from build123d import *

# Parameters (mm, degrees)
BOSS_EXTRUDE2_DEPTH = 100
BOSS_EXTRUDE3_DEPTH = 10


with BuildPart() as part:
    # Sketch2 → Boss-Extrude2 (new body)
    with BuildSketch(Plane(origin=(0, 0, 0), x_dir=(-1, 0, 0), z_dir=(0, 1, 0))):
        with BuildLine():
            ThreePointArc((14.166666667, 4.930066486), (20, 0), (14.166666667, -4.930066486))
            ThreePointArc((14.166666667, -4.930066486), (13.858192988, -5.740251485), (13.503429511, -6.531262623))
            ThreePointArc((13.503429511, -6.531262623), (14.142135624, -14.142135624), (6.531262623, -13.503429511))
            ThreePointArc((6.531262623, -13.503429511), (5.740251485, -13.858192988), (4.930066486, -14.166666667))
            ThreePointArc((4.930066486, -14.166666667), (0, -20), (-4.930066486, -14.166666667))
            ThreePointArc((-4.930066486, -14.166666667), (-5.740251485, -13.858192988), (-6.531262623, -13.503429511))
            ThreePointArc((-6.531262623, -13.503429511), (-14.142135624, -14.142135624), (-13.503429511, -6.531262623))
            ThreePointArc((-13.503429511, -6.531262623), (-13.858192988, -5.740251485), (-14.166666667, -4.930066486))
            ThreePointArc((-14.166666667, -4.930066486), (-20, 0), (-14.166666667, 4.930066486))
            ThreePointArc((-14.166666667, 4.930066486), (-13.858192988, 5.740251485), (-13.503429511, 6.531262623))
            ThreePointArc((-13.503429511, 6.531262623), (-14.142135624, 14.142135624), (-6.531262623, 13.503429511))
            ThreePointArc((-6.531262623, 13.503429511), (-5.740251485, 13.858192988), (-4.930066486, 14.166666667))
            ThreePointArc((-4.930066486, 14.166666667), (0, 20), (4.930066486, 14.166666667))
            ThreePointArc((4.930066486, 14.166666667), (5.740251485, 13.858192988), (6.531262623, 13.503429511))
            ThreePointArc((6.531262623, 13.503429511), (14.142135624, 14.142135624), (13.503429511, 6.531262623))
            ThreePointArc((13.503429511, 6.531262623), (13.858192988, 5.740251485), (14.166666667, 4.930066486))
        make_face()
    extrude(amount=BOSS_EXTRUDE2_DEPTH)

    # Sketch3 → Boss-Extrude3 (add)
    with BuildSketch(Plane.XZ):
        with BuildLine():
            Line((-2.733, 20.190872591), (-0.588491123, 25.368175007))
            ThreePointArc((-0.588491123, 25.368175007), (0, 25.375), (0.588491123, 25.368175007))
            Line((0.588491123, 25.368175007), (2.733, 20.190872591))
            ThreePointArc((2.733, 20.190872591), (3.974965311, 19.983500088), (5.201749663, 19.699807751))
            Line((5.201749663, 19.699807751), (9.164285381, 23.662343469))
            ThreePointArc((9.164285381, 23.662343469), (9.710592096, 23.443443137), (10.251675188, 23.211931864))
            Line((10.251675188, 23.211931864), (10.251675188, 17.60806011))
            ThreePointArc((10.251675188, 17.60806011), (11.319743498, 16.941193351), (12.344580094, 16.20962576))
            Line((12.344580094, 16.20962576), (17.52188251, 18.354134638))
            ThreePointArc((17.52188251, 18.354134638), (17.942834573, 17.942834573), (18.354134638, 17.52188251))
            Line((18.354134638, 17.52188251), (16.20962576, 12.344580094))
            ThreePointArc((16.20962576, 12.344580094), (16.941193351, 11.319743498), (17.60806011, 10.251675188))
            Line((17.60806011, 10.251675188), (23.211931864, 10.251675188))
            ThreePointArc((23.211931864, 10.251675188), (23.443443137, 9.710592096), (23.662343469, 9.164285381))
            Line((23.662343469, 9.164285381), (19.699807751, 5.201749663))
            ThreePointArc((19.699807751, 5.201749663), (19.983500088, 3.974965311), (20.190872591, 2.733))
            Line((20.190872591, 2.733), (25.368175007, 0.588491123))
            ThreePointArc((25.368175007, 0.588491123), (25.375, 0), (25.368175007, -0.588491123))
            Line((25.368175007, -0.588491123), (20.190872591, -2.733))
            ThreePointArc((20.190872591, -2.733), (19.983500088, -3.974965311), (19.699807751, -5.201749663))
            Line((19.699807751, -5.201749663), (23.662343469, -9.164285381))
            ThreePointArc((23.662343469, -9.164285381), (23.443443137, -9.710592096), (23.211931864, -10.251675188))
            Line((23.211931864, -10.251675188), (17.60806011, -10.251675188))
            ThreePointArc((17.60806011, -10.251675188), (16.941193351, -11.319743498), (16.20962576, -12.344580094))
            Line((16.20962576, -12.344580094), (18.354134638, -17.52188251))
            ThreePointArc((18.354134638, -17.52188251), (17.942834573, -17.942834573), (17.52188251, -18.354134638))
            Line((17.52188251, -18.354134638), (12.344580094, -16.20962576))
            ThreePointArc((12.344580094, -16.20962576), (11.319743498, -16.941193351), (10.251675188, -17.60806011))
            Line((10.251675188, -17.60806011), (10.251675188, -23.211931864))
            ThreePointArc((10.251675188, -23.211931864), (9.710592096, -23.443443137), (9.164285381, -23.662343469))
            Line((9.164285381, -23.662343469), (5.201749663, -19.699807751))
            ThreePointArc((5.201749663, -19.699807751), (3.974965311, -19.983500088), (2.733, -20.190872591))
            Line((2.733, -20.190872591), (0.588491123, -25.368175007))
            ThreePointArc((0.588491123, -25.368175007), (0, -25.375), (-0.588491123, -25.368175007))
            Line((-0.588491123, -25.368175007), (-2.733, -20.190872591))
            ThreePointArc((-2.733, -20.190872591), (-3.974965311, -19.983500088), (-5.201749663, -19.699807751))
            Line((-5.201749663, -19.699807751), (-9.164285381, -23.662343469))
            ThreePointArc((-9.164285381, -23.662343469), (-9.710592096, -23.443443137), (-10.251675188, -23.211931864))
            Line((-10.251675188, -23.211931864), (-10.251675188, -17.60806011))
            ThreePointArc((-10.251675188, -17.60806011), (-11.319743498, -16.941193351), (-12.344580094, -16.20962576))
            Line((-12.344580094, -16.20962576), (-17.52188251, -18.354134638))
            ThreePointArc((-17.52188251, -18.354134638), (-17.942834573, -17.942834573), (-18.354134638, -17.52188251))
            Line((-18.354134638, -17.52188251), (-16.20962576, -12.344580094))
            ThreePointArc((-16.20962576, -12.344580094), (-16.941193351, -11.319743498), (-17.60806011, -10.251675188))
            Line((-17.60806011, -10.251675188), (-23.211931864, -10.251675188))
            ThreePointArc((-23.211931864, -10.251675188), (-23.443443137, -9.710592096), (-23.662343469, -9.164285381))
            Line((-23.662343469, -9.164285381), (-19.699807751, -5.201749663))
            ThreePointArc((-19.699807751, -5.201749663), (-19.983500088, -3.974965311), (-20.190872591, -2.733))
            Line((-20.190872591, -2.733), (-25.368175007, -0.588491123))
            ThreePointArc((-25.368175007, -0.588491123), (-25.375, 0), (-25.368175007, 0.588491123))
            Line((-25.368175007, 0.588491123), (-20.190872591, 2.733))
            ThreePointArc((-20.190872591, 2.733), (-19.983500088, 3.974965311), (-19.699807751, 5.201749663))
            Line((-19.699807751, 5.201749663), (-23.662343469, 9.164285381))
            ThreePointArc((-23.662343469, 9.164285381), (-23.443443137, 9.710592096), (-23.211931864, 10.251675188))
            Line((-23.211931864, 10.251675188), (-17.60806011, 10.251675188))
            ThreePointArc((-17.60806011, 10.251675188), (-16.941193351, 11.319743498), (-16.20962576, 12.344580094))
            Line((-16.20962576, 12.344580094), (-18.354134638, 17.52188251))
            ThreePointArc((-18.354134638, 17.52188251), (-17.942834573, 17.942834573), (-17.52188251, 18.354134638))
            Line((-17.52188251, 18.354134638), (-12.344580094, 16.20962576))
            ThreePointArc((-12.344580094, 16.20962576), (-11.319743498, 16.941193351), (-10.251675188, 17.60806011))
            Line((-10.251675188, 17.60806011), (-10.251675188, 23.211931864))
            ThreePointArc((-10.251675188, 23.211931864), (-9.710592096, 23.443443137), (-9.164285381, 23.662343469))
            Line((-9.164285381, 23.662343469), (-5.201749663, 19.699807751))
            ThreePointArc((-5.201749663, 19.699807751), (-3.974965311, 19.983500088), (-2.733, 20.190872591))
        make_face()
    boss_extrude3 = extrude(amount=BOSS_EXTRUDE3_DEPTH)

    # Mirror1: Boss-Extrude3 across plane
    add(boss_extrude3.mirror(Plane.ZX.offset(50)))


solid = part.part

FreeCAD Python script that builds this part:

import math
import FreeCAD as App
import Part
import Sketcher
from FreeCAD import Vector
Q = App.Units.Quantity

doc = App.newDocument("Part")
body = doc.addObject("PartDesign::Body", "Body")

# Sketch on XZ plane
sketch1 = body.newObject("Sketcher::SketchObject", "Sketch")
sketch1.AttachmentSupport = (doc.getObject("XZ_Plane"), [""])
sketch1.MapMode = "FlatFace"
sketch1.addGeometry([
    Part.ArcOfCircle(Part.Circle(Vector(-15, 0, 0), Vector(0, 0, 1), 5), math.radians(80), math.radians(280)),  # 0
    Part.ArcOfCircle(Part.Circle(Vector(0, 0, 0), Vector(0, 0, 1), 15), math.radians(154.19), math.radians(160.81)),  # 1
    Part.ArcOfCircle(Part.Circle(Vector(-10.6, 10.6, 0), Vector(0, 0, 1), 5), math.radians(35), math.radians(235)),  # 2
    Part.ArcOfCircle(Part.Circle(Vector(0, 0, 0), Vector(0, 0, 1), 15), math.radians(109.19), math.radians(115.81)),  # 3
    Part.ArcOfCircle(Part.Circle(Vector(0, 15, 0), Vector(0, 0, 1), 5), math.radians(-10), math.radians(190)),  # 4
    Part.ArcOfCircle(Part.Circle(Vector(0, 0, 0), Vector(0, 0, 1), 15), math.radians(64.19), math.radians(70.81)),  # 5
    Part.ArcOfCircle(Part.Circle(Vector(10.6, 10.6, 0), Vector(0, 0, 1), 5), math.radians(-55), math.radians(145)),  # 6
    Part.ArcOfCircle(Part.Circle(Vector(0, 0, 0), Vector(0, 0, 1), 15), math.radians(19.19), math.radians(25.81)),  # 7
    Part.ArcOfCircle(Part.Circle(Vector(15, 0, 0), Vector(0, 0, 1), 5), math.radians(-100), math.radians(100)),  # 8
    Part.ArcOfCircle(Part.Circle(Vector(0, 0, 0), Vector(0, 0, 1), 15), math.radians(-25.81), math.radians(-19.19)),  # 9
    Part.ArcOfCircle(Part.Circle(Vector(10.6, -10.6, 0), Vector(0, 0, 1), 5), math.radians(-145), math.radians(55)),  # 10
    Part.ArcOfCircle(Part.Circle(Vector(0, 0, 0), Vector(0, 0, 1), 15), math.radians(-70.81), math.radians(-64.19)),  # 11
    Part.ArcOfCircle(Part.Circle(Vector(0, -15, 0), Vector(0, 0, 1), 5), math.radians(170), math.radians(370)),  # 12
    Part.ArcOfCircle(Part.Circle(Vector(0, 0, 0), Vector(0, 0, 1), 15), math.radians(-115.81), math.radians(-109.19)),  # 13
    Part.ArcOfCircle(Part.Circle(Vector(-10.6, -10.6, 0), Vector(0, 0, 1), 5), math.radians(125), math.radians(325)),  # 14
    Part.ArcOfCircle(Part.Circle(Vector(0, 0, 0), Vector(0, 0, 1), 15), math.radians(-160.81), math.radians(-154.19)),  # 15
], False)
sketch1.addConstraint([
    Sketcher.Constraint("Coincident", 0, 1, 1, 2),
    Sketcher.Constraint("Coincident", 1, 1, 2, 2),
    Sketcher.Constraint("Coincident", 2, 1, 3, 2),
    Sketcher.Constraint("Coincident", 3, 1, 4, 2),
    Sketcher.Constraint("Coincident", 4, 1, 5, 2),
    Sketcher.Constraint("Coincident", 5, 1, 6, 2),
    Sketcher.Constraint("Coincident", 6, 1, 7, 2),
    Sketcher.Constraint("Coincident", 7, 1, 8, 2),
    Sketcher.Constraint("Coincident", 8, 1, 9, 2),
    Sketcher.Constraint("Coincident", 9, 1, 10, 2),
    Sketcher.Constraint("Coincident", 10, 1, 11, 2),
    Sketcher.Constraint("Coincident", 11, 1, 12, 2),
    Sketcher.Constraint("Coincident", 12, 1, 13, 2),
    Sketcher.Constraint("Coincident", 13, 1, 14, 2),
    Sketcher.Constraint("Coincident", 14, 1, 15, 2),
    Sketcher.Constraint("Coincident", 15, 1, 0, 2),
    Sketcher.Constraint("Coincident", 1, 3, -1, 1),
    Sketcher.Constraint("Coincident", 3, 3, -1, 1),
    Sketcher.Constraint("Coincident", 5, 3, -1, 1),
    Sketcher.Constraint("Coincident", 7, 3, -1, 1),
    Sketcher.Constraint("Coincident", 9, 3, -1, 1),
    Sketcher.Constraint("Coincident", 11, 3, -1, 1),
    Sketcher.Constraint("Coincident", 13, 3, -1, 1),
    Sketcher.Constraint("Coincident", 15, 3, -1, 1),
    Sketcher.Constraint("Equal", 0, 2),
    Sketcher.Constraint("Equal", 1, 3),
    Sketcher.Constraint("Equal", 2, 4),
    Sketcher.Constraint("Equal", 3, 5),
    Sketcher.Constraint("Equal", 4, 6),
    Sketcher.Constraint("Equal", 5, 7),
    Sketcher.Constraint("Equal", 6, 8),
    Sketcher.Constraint("Equal", 7, 9),
    Sketcher.Constraint("Equal", 8, 10),
    Sketcher.Constraint("Equal", 9, 11),
    Sketcher.Constraint("Equal", 10, 12),
    Sketcher.Constraint("Equal", 11, 13),
    Sketcher.Constraint("Equal", 12, 14),
    Sketcher.Constraint("Equal", 13, 15),
    Sketcher.Constraint("Symmetric", 0, 3, 8, 3, -1, 1),
    Sketcher.Constraint("Symmetric", 2, 3, 10, 3, -1, 1),
    Sketcher.Constraint("Symmetric", 4, 3, 12, 3, -1, 1),
    Sketcher.Constraint("Symmetric", 6, 3, 14, 3, -1, 1),
    Sketcher.Constraint("Symmetric", 2, 3, 6, 3, -2),
    Sketcher.Constraint("PointOnObject", 0, 3, -1),
    Sketcher.Constraint("PointOnObject", 4, 3, -2),
    Sketcher.Constraint("Radius", 0, Q("5 mm")),
    Sketcher.Constraint("Radius", 1, Q("15 mm")),
    Sketcher.Constraint("DistanceX", 0, 3, -1, 1, Q("15 mm")),
    Sketcher.Constraint("DistanceY", -1, 1, 4, 3, Q("15 mm")),
    Sketcher.Constraint("DistanceX", 2, 3, -1, 1, Q("10.606602 mm")),
    Sketcher.Constraint("DistanceY", -1, 1, 2, 3, Q("10.606602 mm")),
])
pad1 = body.newObject("PartDesign::Pad", "Pad")
pad1.Profile = sketch1
pad1.Length = 100
pad1.Reversed = True

# Sketch on XZ plane
sketch2 = body.newObject("Sketcher::SketchObject", "Sketch001")
sketch2.AttachmentSupport = (doc.getObject("XZ_Plane"), [""])
sketch2.MapMode = "FlatFace"
sketch2.addGeometry([
    Part.LineSegment(Vector(-0.588491, 25.368175, 0), Vector(-2.733, 20.190873, 0)),  # 0
    Part.ArcOfCircle(Part.Circle(Vector(0, 0, 0), Vector(0, 0, 1), 20.375), math.radians(97.708602), math.radians(104.791398)),  # 1
    Part.LineSegment(Vector(-5.20175, 19.699808, 0), Vector(-9.164285, 23.662343, 0)),  # 2
    Part.ArcOfCircle(Part.Circle(Vector(0.000001, -0.000002, 0), Vector(0, 0, 1), 25.375002), math.radians(111.17109), math.radians(113.828909)),  # 3
    Part.LineSegment(Vector(-10.251675, 23.211932, 0), Vector(-10.251675, 17.60806, 0)),  # 4
    Part.ArcOfCircle(Part.Circle(Vector(0, 0, 0), Vector(0, 0, 1), 20.375), math.radians(120.208602), math.radians(127.291398)),  # 5
    Part.LineSegment(Vector(-12.34458, 16.209626, 0), Vector(-17.521883, 18.354135, 0)),  # 6
    Part.ArcOfCircle(Part.Circle(Vector(-0.000001, 0.000001, 0), Vector(0, 0, 1), 25.374998), math.radians(133.67109), math.radians(136.32891)),  # 7
    Part.LineSegment(Vector(-18.354135, 17.521883, 0), Vector(-16.209626, 12.34458, 0)),  # 8
    Part.ArcOfCircle(Part.Circle(Vector(0, 0, 0), Vector(0, 0, 1), 20.375), math.radians(142.708602), math.radians(149.791398)),  # 9
    Part.LineSegment(Vector(-17.60806, 10.251675, 0), Vector(-23.211932, 10.251675, 0)),  # 10
    Part.ArcOfCircle(Part.Circle(Vector(0.000002, -0.000001, 0), Vector(0, 0, 1), 25.375002), math.radians(156.171091), math.radians(158.82891)),  # 11
    Part.LineSegment(Vector(-23.662343, 9.164285, 0), Vector(-19.699808, 5.20175, 0)),  # 12
    Part.ArcOfCircle(Part.Circle(Vector(0, 0, 0), Vector(0, 0, 1), 20.375), math.radians(165.208602), math.radians(172.291398)),  # 13
    Part.LineSegment(Vector(-20.190873, 2.733, 0), Vector(-25.368175, 0.588491, 0)),  # 14
    Part.ArcOfCircle(Part.Circle(Vector(-0.000001, 0, 0), Vector(0, 0, 1), 25.374999), math.radians(178.67109), math.radians(181.32891)),  # 15
    Part.LineSegment(Vector(-25.368175, -0.588491, 0), Vector(-20.190873, -2.733, 0)),  # 16
    Part.ArcOfCircle(Part.Circle(Vector(0, 0, 0), Vector(0, 0, 1), 20.375), math.radians(-172.291398), math.radians(-165.208602)),  # 17
    Part.LineSegment(Vector(-19.699808, -5.20175, 0), Vector(-23.662343, -9.164285, 0)),  # 18
    Part.ArcOfCircle(Part.Circle(Vector(0.000002, 0.000001, 0), Vector(0, 0, 1), 25.375002), math.radians(-158.82891), math.radians(-156.171091)),  # 19
    Part.LineSegment(Vector(-23.211932, -10.251675, 0), Vector(-17.60806, -10.251675, 0)),  # 20
    Part.ArcOfCircle(Part.Circle(Vector(0, 0, 0), Vector(0, 0, 1), 20.375), math.radians(-149.791398), math.radians(-142.708602)),  # 21
    Part.LineSegment(Vector(-16.209626, -12.34458, 0), Vector(-18.354135, -17.521883, 0)),  # 22
    Part.ArcOfCircle(Part.Circle(Vector(-0.000001, -0.000001, 0), Vector(0, 0, 1), 25.374998), math.radians(-136.32891), math.radians(-133.67109)),  # 23
    Part.LineSegment(Vector(-17.521883, -18.354135, 0), Vector(-12.34458, -16.209626, 0)),  # 24
    Part.ArcOfCircle(Part.Circle(Vector(0, 0, 0), Vector(0, 0, 1), 20.375), math.radians(-127.291398), math.radians(-120.208602)),  # 25
    Part.LineSegment(Vector(-10.251675, -17.60806, 0), Vector(-10.251675, -23.211932, 0)),  # 26
    Part.ArcOfCircle(Part.Circle(Vector(0.000001, 0.000002, 0), Vector(0, 0, 1), 25.375002), math.radians(-113.828909), math.radians(-111.17109)),  # 27
    Part.LineSegment(Vector(-9.164285, -23.662343, 0), Vector(-5.20175, -19.699808, 0)),  # 28
    Part.ArcOfCircle(Part.Circle(Vector(0, 0, 0), Vector(0, 0, 1), 20.375), math.radians(-104.791398), math.radians(-97.708602)),  # 29
    Part.LineSegment(Vector(-2.733, -20.190873, 0), Vector(-0.588491, -25.368175, 0)),  # 30
    Part.ArcOfCircle(Part.Circle(Vector(0, -0.000001, 0), Vector(0, 0, 1), 25.374999), math.radians(-91.32891), math.radians(-88.67109)),  # 31
    Part.LineSegment(Vector(0.588491, -25.368175, 0), Vector(2.733, -20.190873, 0)),  # 32
    Part.ArcOfCircle(Part.Circle(Vector(0, 0, 0), Vector(0, 0, 1), 20.375), math.radians(-82.291398), math.radians(-75.208602)),  # 33
    Part.LineSegment(Vector(5.20175, -19.699808, 0), Vector(9.164285, -23.662343, 0)),  # 34
    Part.ArcOfCircle(Part.Circle(Vector(-0.000001, 0.000002, 0), Vector(0, 0, 1), 25.375002), math.radians(-68.82891), math.radians(-66.171091)),  # 35
    Part.LineSegment(Vector(10.251675, -23.211932, 0), Vector(10.251675, -17.60806, 0)),  # 36
    Part.ArcOfCircle(Part.Circle(Vector(0, 0, 0), Vector(0, 0, 1), 20.375), math.radians(-59.791398), math.radians(-52.708602)),  # 37
    Part.LineSegment(Vector(12.34458, -16.209626, 0), Vector(17.521883, -18.354135, 0)),  # 38
    Part.ArcOfCircle(Part.Circle(Vector(0.000001, -0.000001, 0), Vector(0, 0, 1), 25.374998), math.radians(-46.32891), math.radians(-43.67109)),  # 39
    Part.LineSegment(Vector(18.354135, -17.521883, 0), Vector(16.209626, -12.34458, 0)),  # 40
    Part.ArcOfCircle(Part.Circle(Vector(0, 0, 0), Vector(0, 0, 1), 20.375), math.radians(-37.291398), math.radians(-30.208602)),  # 41
    Part.LineSegment(Vector(17.60806, -10.251675, 0), Vector(23.211932, -10.251675, 0)),  # 42
    Part.ArcOfCircle(Part.Circle(Vector(-0.000002, 0.000001, 0), Vector(0, 0, 1), 25.375002), math.radians(-23.828909), math.radians(-21.17109)),  # 43
    Part.LineSegment(Vector(23.662343, -9.164285, 0), Vector(19.699808, -5.20175, 0)),  # 44
    Part.ArcOfCircle(Part.Circle(Vector(0, 0, 0), Vector(0, 0, 1), 20.375), math.radians(-14.791398), math.radians(-7.708602)),  # 45
    Part.LineSegment(Vector(20.190873, -2.733, 0), Vector(25.368175, -0.588491, 0)),  # 46
    Part.ArcOfCircle(Part.Circle(Vector(0.000001, 0, 0), Vector(0, 0, 1), 25.374999), math.radians(-1.32891), math.radians(1.32891)),  # 47
    Part.LineSegment(Vector(25.368175, 0.588491, 0), Vector(20.190873, 2.733, 0)),  # 48
    Part.ArcOfCircle(Part.Circle(Vector(0, 0, 0), Vector(0, 0, 1), 20.375), math.radians(7.708602), math.radians(14.791398)),  # 49
    Part.LineSegment(Vector(19.699808, 5.20175, 0), Vector(23.662343, 9.164285, 0)),  # 50
    Part.ArcOfCircle(Part.Circle(Vector(-0.000002, -0.000001, 0), Vector(0, 0, 1), 25.375002), math.radians(21.17109), math.radians(23.828909)),  # 51
    Part.LineSegment(Vector(23.211932, 10.251675, 0), Vector(17.60806, 10.251675, 0)),  # 52
    Part.ArcOfCircle(Part.Circle(Vector(0, 0, 0), Vector(0, 0, 1), 20.375), math.radians(30.208602), math.radians(37.291398)),  # 53
    Part.LineSegment(Vector(16.209626, 12.34458, 0), Vector(18.354135, 17.521883, 0)),  # 54
    Part.ArcOfCircle(Part.Circle(Vector(0.000001, 0.000001, 0), Vector(0, 0, 1), 25.374998), math.radians(43.67109), math.radians(46.32891)),  # 55
    Part.LineSegment(Vector(17.521883, 18.354135, 0), Vector(12.34458, 16.209626, 0)),  # 56
    Part.ArcOfCircle(Part.Circle(Vector(0, 0, 0), Vector(0, 0, 1), 20.375), math.radians(52.708602), math.radians(59.791398)),  # 57
    Part.LineSegment(Vector(10.251675, 17.60806, 0), Vector(10.251675, 23.211932, 0)),  # 58
    Part.ArcOfCircle(Part.Circle(Vector(-0.000001, -0.000002, 0), Vector(0, 0, 1), 25.375002), math.radians(66.171091), math.radians(68.82891)),  # 59
    Part.LineSegment(Vector(9.164285, 23.662343, 0), Vector(5.20175, 19.699808, 0)),  # 60
    Part.ArcOfCircle(Part.Circle(Vector(0, 0, 0), Vector(0, 0, 1), 20.375), math.radians(75.208602), math.radians(82.291398)),  # 61
    Part.LineSegment(Vector(2.733, 20.190873, 0), Vector(0.588491, 25.368175, 0)),  # 62
    Part.ArcOfCircle(Part.Circle(Vector(0, 0.000001, 0), Vector(0, 0, 1), 25.374999), math.radians(88.67109), math.radians(91.32891)),  # 63
], False)
sketch2.addConstraint([
    Sketcher.Constraint("Coincident", 0, 2, 1, 1),
    Sketcher.Constraint("Coincident", 1, 2, 2, 1),
    Sketcher.Constraint("Coincident", 2, 2, 3, 1),
    Sketcher.Constraint("Coincident", 3, 2, 4, 1),
    Sketcher.Constraint("Coincident", 4, 2, 5, 1),
    Sketcher.Constraint("Coincident", 5, 2, 6, 1),
    Sketcher.Constraint("Coincident", 6, 2, 7, 1),
    Sketcher.Constraint("Coincident", 7, 2, 8, 1),
    Sketcher.Constraint("Coincident", 8, 2, 9, 1),
    Sketcher.Constraint("Coincident", 9, 2, 10, 1),
    Sketcher.Constraint("Coincident", 10, 2, 11, 1),
    Sketcher.Constraint("Coincident", 11, 2, 12, 1),
    Sketcher.Constraint("Coincident", 12, 2, 13, 1),
    Sketcher.Constraint("Coincident", 13, 2, 14, 1),
    Sketcher.Constraint("Coincident", 14, 2, 15, 1),
    Sketcher.Constraint("Coincident", 15, 2, 16, 1),
    Sketcher.Constraint("Coincident", 16, 2, 17, 1),
    Sketcher.Constraint("Coincident", 17, 2, 18, 1),
    Sketcher.Constraint("Coincident", 18, 2, 19, 1),
    Sketcher.Constraint("Coincident", 19, 2, 20, 1),
    Sketcher.Constraint("Coincident", 20, 2, 21, 1),
    Sketcher.Constraint("Coincident", 21, 2, 22, 1),
    Sketcher.Constraint("Coincident", 22, 2, 23, 1),
    Sketcher.Constraint("Coincident", 23, 2, 24, 1),
    Sketcher.Constraint("Coincident", 24, 2, 25, 1),
    Sketcher.Constraint("Coincident", 25, 2, 26, 1),
    Sketcher.Constraint("Coincident", 26, 2, 27, 1),
    Sketcher.Constraint("Coincident", 27, 2, 28, 1),
    Sketcher.Constraint("Coincident", 28, 2, 29, 1),
    Sketcher.Constraint("Coincident", 29, 2, 30, 1),
    Sketcher.Constraint("Coincident", 30, 2, 31, 1),
    Sketcher.Constraint("Coincident", 31, 2, 32, 1),
    Sketcher.Constraint("Coincident", 32, 2, 33, 1),
    Sketcher.Constraint("Coincident", 33, 2, 34, 1),
    Sketcher.Constraint("Coincident", 34, 2, 35, 1),
    Sketcher.Constraint("Coincident", 35, 2, 36, 1),
    Sketcher.Constraint("Coincident", 36, 2, 37, 1),
    Sketcher.Constraint("Coincident", 37, 2, 38, 1),
    Sketcher.Constraint("Coincident", 38, 2, 39, 1),
    Sketcher.Constraint("Coincident", 39, 2, 40, 1),
    Sketcher.Constraint("Coincident", 40, 2, 41, 1),
    Sketcher.Constraint("Coincident", 41, 2, 42, 1),
    Sketcher.Constraint("Coincident", 42, 2, 43, 1),
    Sketcher.Constraint("Coincident", 43, 2, 44, 1),
    Sketcher.Constraint("Coincident", 44, 2, 45, 1),
    Sketcher.Constraint("Coincident", 45, 2, 46, 1),
    Sketcher.Constraint("Coincident", 46, 2, 47, 1),
    Sketcher.Constraint("Coincident", 47, 2, 48, 1),
    Sketcher.Constraint("Coincident", 48, 2, 49, 1),
    Sketcher.Constraint("Coincident", 49, 2, 50, 1),
    Sketcher.Constraint("Coincident", 50, 2, 51, 1),
    Sketcher.Constraint("Coincident", 51, 2, 52, 1),
    Sketcher.Constraint("Coincident", 52, 2, 53, 1),
    Sketcher.Constraint("Coincident", 53, 2, 54, 1),
    Sketcher.Constraint("Coincident", 54, 2, 55, 1),
    Sketcher.Constraint("Coincident", 55, 2, 56, 1),
    Sketcher.Constraint("Coincident", 56, 2, 57, 1),
    Sketcher.Constraint("Coincident", 57, 2, 58, 1),
    Sketcher.Constraint("Coincident", 58, 2, 59, 1),
    Sketcher.Constraint("Coincident", 59, 2, 60, 1),
    Sketcher.Constraint("Coincident", 60, 2, 61, 1),
    Sketcher.Constraint("Coincident", 61, 2, 62, 1),
    Sketcher.Constraint("Coincident", 62, 2, 63, 1),
    Sketcher.Constraint("Coincident", 63, 2, 0, 1),
    Sketcher.Constraint("Vertical", 4),
    Sketcher.Constraint("Horizontal", 10),
    Sketcher.Constraint("Horizontal", 20),
    Sketcher.Constraint("Vertical", 26),
    Sketcher.Constraint("Vertical", 36),
    Sketcher.Constraint("Horizontal", 42),
    Sketcher.Constraint("Horizontal", 52),
    Sketcher.Constraint("Vertical", 58),
    Sketcher.Constraint("Coincident", 1, 3, -1, 1),
    Sketcher.Constraint("Coincident", 3, 3, -1, 1),
    Sketcher.Constraint("Coincident", 5, 3, -1, 1),
    Sketcher.Constraint("Coincident", 7, 3, -1, 1),
    Sketcher.Constraint("Coincident", 9, 3, -1, 1),
    Sketcher.Constraint("Coincident", 11, 3, -1, 1),
    Sketcher.Constraint("Coincident", 13, 3, -1, 1),
    Sketcher.Constraint("Coincident", 15, 3, -1, 1),
    Sketcher.Constraint("Coincident", 17, 3, -1, 1),
    Sketcher.Constraint("Coincident", 19, 3, -1, 1),
    Sketcher.Constraint("Coincident", 21, 3, -1, 1),
    Sketcher.Constraint("Coincident", 23, 3, -1, 1),
    Sketcher.Constraint("Coincident", 25, 3, -1, 1),
    Sketcher.Constraint("Coincident", 27, 3, -1, 1),
    Sketcher.Constraint("Coincident", 29, 3, -1, 1),
    Sketcher.Constraint("Coincident", 31, 3, -1, 1),
    Sketcher.Constraint("Coincident", 33, 3, -1, 1),
    Sketcher.Constraint("Coincident", 35, 3, -1, 1),
    Sketcher.Constraint("Coincident", 37, 3, -1, 1),
    Sketcher.Constraint("Coincident", 39, 3, -1, 1),
    Sketcher.Constraint("Coincident", 41, 3, -1, 1),
    Sketcher.Constraint("Coincident", 43, 3, -1, 1),
    Sketcher.Constraint("Coincident", 45, 3, -1, 1),
    Sketcher.Constraint("Coincident", 47, 3, -1, 1),
    Sketcher.Constraint("Coincident", 49, 3, -1, 1),
    Sketcher.Constraint("Coincident", 51, 3, -1, 1),
    Sketcher.Constraint("Coincident", 53, 3, -1, 1),
    Sketcher.Constraint("Coincident", 55, 3, -1, 1),
    Sketcher.Constraint("Coincident", 57, 3, -1, 1),
    Sketcher.Constraint("Coincident", 59, 3, -1, 1),
    Sketcher.Constraint("Coincident", 61, 3, -1, 1),
    Sketcher.Constraint("Coincident", 63, 3, -1, 1),
    Sketcher.Constraint("Radius", 1, Q("20.375 mm")),
    Sketcher.Constraint("Radius", 5, Q("20.375 mm")),
    Sketcher.Constraint("Radius", 7, Q("25.374998 mm")),
    Sketcher.Constraint("Radius", 9, Q("20.375 mm")),
    Sketcher.Constraint("Radius", 13, Q("20.375 mm")),
    Sketcher.Constraint("Radius", 15, Q("25.374999 mm")),
    Sketcher.Constraint("Radius", 17, Q("20.375 mm")),
    Sketcher.Constraint("Radius", 21, Q("20.375 mm")),
    Sketcher.Constraint("Radius", 23, Q("25.374998 mm")),
    Sketcher.Constraint("Radius", 25, Q("20.375 mm")),
    Sketcher.Constraint("Radius", 29, Q("20.375 mm")),
    Sketcher.Constraint("Radius", 31, Q("25.374999 mm")),
    Sketcher.Constraint("Radius", 33, Q("20.375 mm")),
    Sketcher.Constraint("Radius", 37, Q("20.375 mm")),
    Sketcher.Constraint("Radius", 39, Q("25.374998 mm")),
    Sketcher.Constraint("Radius", 41, Q("20.375 mm")),
    Sketcher.Constraint("Radius", 45, Q("20.375 mm")),
    Sketcher.Constraint("Radius", 47, Q("25.374999 mm")),
    Sketcher.Constraint("Radius", 49, Q("20.375 mm")),
    Sketcher.Constraint("Radius", 53, Q("20.375 mm")),
    Sketcher.Constraint("Radius", 55, Q("25.374998 mm")),
    Sketcher.Constraint("Radius", 57, Q("20.375 mm")),
    Sketcher.Constraint("Radius", 61, Q("20.375 mm")),
    Sketcher.Constraint("Radius", 63, Q("25.374999 mm")),
    Sketcher.Constraint("DistanceX", 0, 2, -1, 1, Q("2.733 mm")),
    Sketcher.Constraint("DistanceY", -1, 1, 13, 2, Q("2.733 mm")),
    Sketcher.Constraint("DistanceY", 16, 2, -1, 1, Q("2.733 mm")),
    Sketcher.Constraint("DistanceX", 29, 2, -1, 1, Q("2.733 mm")),
    Sketcher.Constraint("DistanceX", -1, 1, 32, 2, Q("2.733 mm")),
    Sketcher.Constraint("DistanceY", 45, 2, -1, 1, Q("2.733 mm")),
    Sketcher.Constraint("DistanceY", -1, 1, 48, 2, Q("2.733 mm")),
    Sketcher.Constraint("DistanceX", -1, 1, 61, 2, Q("2.733 mm")),
    Sketcher.Constraint("Radius", 3, Q("25.375002 mm")),
    Sketcher.Constraint("Radius", 11, Q("25.375002 mm")),
    Sketcher.Constraint("Radius", 19, Q("25.375002 mm")),
    Sketcher.Constraint("Radius", 27, Q("25.375002 mm")),
    Sketcher.Constraint("Radius", 35, Q("25.375002 mm")),
    Sketcher.Constraint("Radius", 43, Q("25.375002 mm")),
    Sketcher.Constraint("Radius", 51, Q("25.375002 mm")),
    Sketcher.Constraint("Radius", 59, Q("25.375002 mm")),
    Sketcher.Constraint("DistanceX", 10, 2, 10, 1, Q("5.603872 mm")),
    Sketcher.Constraint("DistanceX", 20, 1, 20, 2, Q("5.603872 mm")),
    Sketcher.Constraint("DistanceX", 42, 1, 42, 2, Q("5.603872 mm")),
    Sketcher.Constraint("DistanceX", 52, 2, 52, 1, Q("5.603872 mm")),
    Sketcher.Constraint("DistanceY", 4, 2, 4, 1, Q("5.603872 mm")),
    Sketcher.Constraint("DistanceY", 26, 2, 26, 1, Q("5.603872 mm")),
    Sketcher.Constraint("DistanceY", 36, 1, 36, 2, Q("5.603872 mm")),
    Sketcher.Constraint("DistanceY", 58, 1, 58, 2, Q("5.603872 mm")),
    Sketcher.Constraint("Distance", 0, Q("5.603872 mm")),
    Sketcher.Constraint("Distance", 2, Q("5.603872 mm")),
    Sketcher.Constraint("Distance", 6, Q("5.603872 mm")),
    Sketcher.Constraint("Distance", 8, Q("5.603872 mm")),
    Sketcher.Constraint("Distance", 12, Q("5.603872 mm")),
    Sketcher.Constraint("Distance", 14, Q("5.603872 mm")),
    Sketcher.Constraint("Distance", 16, Q("5.603872 mm")),
    Sketcher.Constraint("Distance", 18, Q("5.603872 mm")),
    Sketcher.Constraint("Distance", 22, Q("5.603872 mm")),
    Sketcher.Constraint("Distance", 24, Q("5.603872 mm")),
    Sketcher.Constraint("Distance", 28, Q("5.603872 mm")),
    Sketcher.Constraint("Distance", 30, Q("5.603872 mm")),
    Sketcher.Constraint("Distance", 32, Q("5.603872 mm")),
    Sketcher.Constraint("Distance", 34, Q("5.603872 mm")),
    Sketcher.Constraint("Distance", 38, Q("5.603872 mm")),
    Sketcher.Constraint("Distance", 40, Q("5.603872 mm")),
    Sketcher.Constraint("Distance", 44, Q("5.603872 mm")),
    Sketcher.Constraint("Distance", 46, Q("5.603872 mm")),
    Sketcher.Constraint("Distance", 48, Q("5.603872 mm")),
    Sketcher.Constraint("Distance", 50, Q("5.603872 mm")),
    Sketcher.Constraint("Distance", 54, Q("5.603872 mm")),
    Sketcher.Constraint("Distance", 56, Q("5.603872 mm")),
    Sketcher.Constraint("Distance", 60, Q("5.603872 mm")),
    Sketcher.Constraint("Distance", 62, Q("5.603872 mm")),
    Sketcher.Constraint("DistanceX", 1, 2, -1, 1, Q("5.20175 mm")),
    Sketcher.Constraint("DistanceX", 5, 2, -1, 1, Q("12.34458 mm")),
    Sketcher.Constraint("DistanceY", -1, 1, 8, 2, Q("12.34458 mm")),
    Sketcher.Constraint("DistanceY", -1, 1, 12, 2, Q("5.20175 mm")),
    Sketcher.Constraint("DistanceY", 17, 2, -1, 1, Q("5.20175 mm")),
    Sketcher.Constraint("DistanceY", 21, 2, -1, 1, Q("12.34458 mm")),
    Sketcher.Constraint("DistanceX", 24, 2, -1, 1, Q("12.34458 mm")),
    Sketcher.Constraint("DistanceX", 28, 2, -1, 1, Q("5.20175 mm")),
    Sketcher.Constraint("DistanceX", -1, 1, 33, 2, Q("5.20175 mm")),
    Sketcher.Constraint("DistanceX", -1, 1, 37, 2, Q("12.34458 mm")),
    Sketcher.Constraint("DistanceY", 40, 2, -1, 1, Q("12.34458 mm")),
    Sketcher.Constraint("DistanceY", 44, 2, -1, 1, Q("5.20175 mm")),
    Sketcher.Constraint("DistanceY", -1, 1, 49, 2, Q("5.20175 mm")),
    Sketcher.Constraint("DistanceY", -1, 1, 53, 2, Q("12.34458 mm")),
    Sketcher.Constraint("DistanceX", -1, 1, 56, 2, Q("12.34458 mm")),
    Sketcher.Constraint("DistanceX", -1, 1, 60, 2, Q("5.20175 mm")),
])
pad2 = body.newObject("PartDesign::Pad", "Pad001")
pad2.Profile = sketch2
pad2.Length = 10
doc.recompute()

datumplane = body.newObject("PartDesign::Plane", "DatumPlane")
datumplane.AttachmentSupport = (doc.getObject("XZ_Plane"), [""])
datumplane.MapMode = "FlatFace"
datumplane.AttachmentOffset = App.Placement(Vector(0, 0, -50), App.Rotation())
mirrored = body.newObject("PartDesign::Mirrored", "Mirrored")
mirrored.Originals = [pad2]
mirrored.MirrorPlane = (datumplane, [""])
body.Tip = mirrored

doc.recompute()
